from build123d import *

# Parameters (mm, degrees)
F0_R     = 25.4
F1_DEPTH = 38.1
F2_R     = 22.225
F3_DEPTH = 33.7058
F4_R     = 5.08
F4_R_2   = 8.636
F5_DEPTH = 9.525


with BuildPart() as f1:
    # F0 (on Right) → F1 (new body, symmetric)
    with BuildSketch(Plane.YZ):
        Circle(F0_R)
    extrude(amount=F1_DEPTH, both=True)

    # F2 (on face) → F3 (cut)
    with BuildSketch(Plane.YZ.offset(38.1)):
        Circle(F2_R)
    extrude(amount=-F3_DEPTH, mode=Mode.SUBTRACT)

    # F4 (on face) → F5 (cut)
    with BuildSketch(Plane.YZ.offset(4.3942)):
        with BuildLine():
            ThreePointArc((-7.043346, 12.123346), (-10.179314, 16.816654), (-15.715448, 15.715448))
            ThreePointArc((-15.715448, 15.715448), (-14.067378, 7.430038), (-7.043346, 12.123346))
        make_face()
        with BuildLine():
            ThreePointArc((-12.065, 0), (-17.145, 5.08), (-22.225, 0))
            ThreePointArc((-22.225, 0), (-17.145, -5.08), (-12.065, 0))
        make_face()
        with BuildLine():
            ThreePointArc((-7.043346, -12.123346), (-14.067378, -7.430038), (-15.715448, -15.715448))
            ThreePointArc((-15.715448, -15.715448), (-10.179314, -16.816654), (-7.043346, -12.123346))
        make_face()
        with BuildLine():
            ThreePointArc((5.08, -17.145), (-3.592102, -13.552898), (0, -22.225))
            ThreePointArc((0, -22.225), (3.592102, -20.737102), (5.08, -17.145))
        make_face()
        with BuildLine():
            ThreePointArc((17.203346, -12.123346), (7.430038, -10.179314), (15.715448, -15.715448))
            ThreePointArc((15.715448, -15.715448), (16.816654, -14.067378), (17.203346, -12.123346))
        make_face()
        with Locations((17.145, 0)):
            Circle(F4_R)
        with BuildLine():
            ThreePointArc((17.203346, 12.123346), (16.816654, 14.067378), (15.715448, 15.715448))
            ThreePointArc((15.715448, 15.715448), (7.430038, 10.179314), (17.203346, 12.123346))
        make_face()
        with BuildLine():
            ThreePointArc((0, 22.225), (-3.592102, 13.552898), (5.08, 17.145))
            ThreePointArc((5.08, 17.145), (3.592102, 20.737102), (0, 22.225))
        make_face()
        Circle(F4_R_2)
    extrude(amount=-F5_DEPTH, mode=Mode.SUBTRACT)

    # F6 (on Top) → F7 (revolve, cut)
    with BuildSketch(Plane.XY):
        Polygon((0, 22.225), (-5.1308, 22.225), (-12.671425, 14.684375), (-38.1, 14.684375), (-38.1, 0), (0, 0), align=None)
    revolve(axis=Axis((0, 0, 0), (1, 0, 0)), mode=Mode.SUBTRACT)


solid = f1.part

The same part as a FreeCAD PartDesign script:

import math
import FreeCAD as App
import Part
import Sketcher
from FreeCAD import Vector
Q = App.Units.Quantity

doc = App.newDocument("Part")
body = doc.addObject("PartDesign::Body", "Body")

# Sketch on YZ plane
sketch1 = doc.addObject("Sketcher::SketchObject", "Sketch")
body.addObject(sketch1)
sketch1.AttachmentSupport = (doc.YZ_Plane, [""])
sketch1.MapMode = "FlatFace"
sketch1.addGeometry(Part.Circle(Vector(0, 0, 0), Vector(0, 0, 1), 25.4), False)
sketch1.addConstraint([
    Sketcher.Constraint("Coincident", 0, 3, -1, 1),
    Sketcher.Constraint("Diameter", 0, Q("2 in")),
])
pad1 = doc.addObject("PartDesign::Pad", "Pad")
body.addObject(pad1)
pad1.Profile = sketch1
pad1.Length = Q("3 in")
pad1.Midplane = True

# Sketch on YZ plane
sketch2 = doc.addObject("Sketcher::SketchObject", "Sketch001")
body.addObject(sketch2)
sketch2.AttachmentSupport = (doc.YZ_Plane, [""])
sketch2.MapMode = "FlatFace"
sketch2.AttachmentOffset = App.Placement(Vector(0, 0, 1.5 * 25.4), App.Rotation())
sketch2.addGeometry(Part.Circle(Vector(0, 0, 0), Vector(0, 0, 1), 22.225), False)
sketch2.addConstraint([
    Sketcher.Constraint("Coincident", 0, 3, -1, 1),
    Sketcher.Constraint("Diameter", 0, Q("1.75 in")),
])
pocket1 = doc.addObject("PartDesign::Pocket", "Pocket")
body.addObject(pocket1)
pocket1.Profile = sketch2
pocket1.Length = Q("1.327 in")

# Sketch on YZ plane
sketch3 = doc.addObject("Sketcher::SketchObject", "Sketch002")
body.addObject(sketch3)
sketch3.AttachmentSupport = (doc.YZ_Plane, [""])
sketch3.MapMode = "FlatFace"
sketch3.AttachmentOffset = App.Placement(Vector(0, 0, 0.173 * 25.4), App.Rotation())
sketch3.addGeometry([
    Part.ArcOfCircle(Part.Circle(Vector(-12.123345, 12.123346, 0), Vector(0, 0, 1), 5.079999), math.radians(-0.000005), math.radians(135.000007)),  # 0
    Part.ArcOfCircle(Part.Circle(Vector(-12.123346, 12.123346, 0), Vector(0, 0, 1), 5.08), math.radians(134.999999), math.radians(360.000004)),  # 1
    Part.Circle(Vector(-17.145, 0, 0), Vector(0, 0, 1), 5.08),  # 2
    Part.ArcOfCircle(Part.Circle(Vector(-12.123346, -12.123346, 0), Vector(0, 0, 1), 5.08), math.radians(-0.000004), math.radians(225.000001)),  # 3
    Part.ArcOfCircle(Part.Circle(Vector(-12.123345, -12.123346, 0), Vector(0, 0, 1), 5.079999), math.radians(-135.000007), math.radians(0.000005)),  # 4
    Part.ArcOfCircle(Part.Circle(Vector(0, -17.145, 0), Vector(0, 0, 1), 5.08), math.radians(0.000003), math.radians(269.999997)),  # 5
    Part.ArcOfCircle(Part.Circle(Vector(-0.000002, -17.144998, 0), Vector(0, 0, 1), 5.080002), math.radians(-89.999983), math.radians(-0.000017)),  # 6
    Part.ArcOfCircle(Part.Circle(Vector(12.123346, -12.123345, 0), Vector(0, 0, 1), 5.08), math.radians(-0.000009), math.radians(314.999992)),  # 7
    Part.ArcOfCircle(Part.Circle(Vector(12.123351, -12.123347, 0), Vector(0, 0, 1), 5.079995), math.radians(-45.000029), math.radians(0.000012)),  # 8
    Part.Circle(Vector(17.145, 0, 0), Vector(0, 0, 1), 5.08),  # 9
    Part.ArcOfCircle(Part.Circle(Vector(12.123351, 12.123347, 0), Vector(0, 0, 1), 5.079995), math.radians(-0.000012), math.radians(45.000029)),  # 10
    Part.ArcOfCircle(Part.Circle(Vector(12.123346, 12.123345, 0), Vector(0, 0, 1), 5.08), math.radians(45.000008), math.radians(360.000009)),  # 11
    Part.ArcOfCircle(Part.Circle(Vector(0, 17.145, 0), Vector(0, 0, 1), 5.08), math.radians(90.000003), math.radians(359.999997)),  # 12
    Part.ArcOfCircle(Part.Circle(Vector(-0.000002, 17.144998, 0), Vector(0, 0, 1), 5.080002), math.radians(0.000017), math.radians(89.999983)),  # 13
    Part.Circle(Vector(0, 0, 0), Vector(0, 0, 1), 8.636),  # 14
], False)
sketch3.addConstraint([
    Sketcher.Constraint("Tangent", 0, 1, 1, 2),
    Sketcher.Constraint("Coincident", 1, 1, 0, 2),
    Sketcher.Constraint("Tangent", 3, 1, 4, 2),
    Sketcher.Constraint("Coincident", 4, 1, 3, 2),
    Sketcher.Constraint("Tangent", 5, 1, 6, 2),
    Sketcher.Constraint("Coincident", 6, 1, 5, 2),
    Sketcher.Constraint("Tangent", 7, 1, 8, 2),
    Sketcher.Constraint("Coincident", 8, 1, 7, 2),
    Sketcher.Constraint("Tangent", 10, 1, 11, 2),
    Sketcher.Constraint("Coincident", 11, 1, 10, 2),
    Sketcher.Constraint("Tangent", 12, 1, 13, 2),
    Sketcher.Constraint("Coincident", 13, 1, 12, 2),
    Sketcher.Constraint("Coincident", 14, 3, -1, 1),
    Sketcher.Constraint("Equal", 1, 2),
    Sketcher.Constraint("Equal", 2, 3),
    Sketcher.Constraint("Equal", 4, 5),
    Sketcher.Constraint("Equal", 6, 7),
    Sketcher.Constraint("Equal", 7, 9),
    Sketcher.Constraint("Equal", 8, 10),
    Sketcher.Constraint("Equal", 11, 12),
    Sketcher.Constraint("Symmetric", 0, 3, 7, 3, -1, 1),
    Sketcher.Constraint("Symmetric", 2, 3, 9, 3, -1, 1),
    Sketcher.Constraint("Symmetric", 3, 3, 10, 3, -1, 1),
    Sketcher.Constraint("Symmetric", 5, 3, 12, 3, -1, 1),
    Sketcher.Constraint("Symmetric", 3, 3, 7, 3, -2),
    Sketcher.Constraint("Symmetric", 5, 1, 13, 1, -1),
    Sketcher.Constraint("PointOnObject", 2, 3, -1),
    Sketcher.Constraint("PointOnObject", 6, 1, -2),
    Sketcher.Constraint("PointOnObject", 12, 1, -2),
    Sketcher.Constraint("Horizontal", 11, 3, 0, 1),
    Sketcher.Constraint("Horizontal", 8, 3, 3, 1),
    Sketcher.Constraint("Horizontal", 6, 3, 5, 1),
    Sketcher.Constraint("Horizontal", 3, 1, 7, 1),
    Sketcher.Constraint("Horizontal", 4, 1, 8, 1),
    Sketcher.Constraint("Horizontal", 0, 1, 10, 1),
    Sketcher.Constraint("Horizontal", 1, 1, 11, 1),
    Sketcher.Constraint("Vertical", 1, 1, 4, 1),
    Sketcher.Constraint("Diameter", 2, Q("0.4 in")),
    Sketcher.Constraint("Diameter", 14, Q("0.68 in")),
    Sketcher.Constraint("DistanceX", 2, 3, -1, 1, Q("0.675 in")),
    Sketcher.Constraint("DistanceY", 5, 3, -1, 1, Q("0.675 in")),
    Sketcher.Constraint("DistanceY", 0, 3, 1, 1, 3.592102),
    Sketcher.Constraint("DistanceX", -1, 1, 8, 3, 12.123351),
    Sketcher.Constraint("DistanceY", -1, 1, 1, 1, 15.715448),
])
pocket2 = doc.addObject("PartDesign::Pocket", "Pocket001")
body.addObject(pocket2)
pocket2.Profile = sketch3
pocket2.Length = Q("0.375 in")

# Sketch on XY plane
sketch4 = doc.addObject("Sketcher::SketchObject", "Sketch003")
body.addObject(sketch4)
sketch4.AttachmentSupport = (doc.XY_Plane, [""])
sketch4.MapMode = "FlatFace"
sketch4.addGeometry([
    Part.LineSegment(Vector(0, 22.225, 0), Vector(-5.1308, 22.225, 0)),  # 0
    Part.LineSegment(Vector(-5.1308, 22.225, 0), Vector(-12.671425, 14.684375, 0)),  # 1
    Part.LineSegment(Vector(-12.671425, 14.684375, 0), Vector(-38.1, 14.684375, 0)),  # 2
    Part.LineSegment(Vector(-38.1, 14.684375, 0), Vector(-38.1, 0, 0)),  # 3
    Part.LineSegment(Vector(-38.1, 0, 0), Vector(0, 0, 0)),  # 4
    Part.LineSegment(Vector(0, 0, 0), Vector(0, 22.225, 0)),  # 5
], False)
sketch4.addConstraint([
    Sketcher.Constraint("Coincident", 0, 2, 1, 1),
    Sketcher.Constraint("Coincident", 1, 2, 2, 1),
    Sketcher.Constraint("Coincident", 2, 2, 3, 1),
    Sketcher.Constraint("Coincident", 3, 2, 4, 1),
    Sketcher.Constraint("Coincident", 4, 2, 5, 1),
    Sketcher.Constraint("Coincident", 5, 2, 0, 1),
    Sketcher.Constraint("Horizontal", 0),
    Sketcher.Constraint("Horizontal", 2),
    Sketcher.Constraint("Vertical", 3),
    Sketcher.Constraint("Horizontal", 4),
    Sketcher.Constraint("Vertical", 5),
    Sketcher.Constraint("Coincident", 4, 2, -1, 1),
    Sketcher.Constraint("DistanceX", 4, 1, 4, 2, Q("1.5 in")),
    Sketcher.Constraint("Angle", 1, Q("-135 deg")),
    Sketcher.Constraint("DistanceX", 0, 2, 0, 1, Q("0.202 in")),
    Sketcher.Constraint("DistanceY", 3, 2, 3, 1, Q("0.578125 in")),
    Sketcher.Constraint("DistanceY", 5, 1, 5, 2, Q("0.875 in")),
])
groove = doc.addObject("PartDesign::Groove", "Groove")
body.addObject(groove)
groove.Profile = sketch4
groove.ReferenceAxis = (sketch4, ["H_Axis"])
groove.Angle = 360

doc.recompute()
